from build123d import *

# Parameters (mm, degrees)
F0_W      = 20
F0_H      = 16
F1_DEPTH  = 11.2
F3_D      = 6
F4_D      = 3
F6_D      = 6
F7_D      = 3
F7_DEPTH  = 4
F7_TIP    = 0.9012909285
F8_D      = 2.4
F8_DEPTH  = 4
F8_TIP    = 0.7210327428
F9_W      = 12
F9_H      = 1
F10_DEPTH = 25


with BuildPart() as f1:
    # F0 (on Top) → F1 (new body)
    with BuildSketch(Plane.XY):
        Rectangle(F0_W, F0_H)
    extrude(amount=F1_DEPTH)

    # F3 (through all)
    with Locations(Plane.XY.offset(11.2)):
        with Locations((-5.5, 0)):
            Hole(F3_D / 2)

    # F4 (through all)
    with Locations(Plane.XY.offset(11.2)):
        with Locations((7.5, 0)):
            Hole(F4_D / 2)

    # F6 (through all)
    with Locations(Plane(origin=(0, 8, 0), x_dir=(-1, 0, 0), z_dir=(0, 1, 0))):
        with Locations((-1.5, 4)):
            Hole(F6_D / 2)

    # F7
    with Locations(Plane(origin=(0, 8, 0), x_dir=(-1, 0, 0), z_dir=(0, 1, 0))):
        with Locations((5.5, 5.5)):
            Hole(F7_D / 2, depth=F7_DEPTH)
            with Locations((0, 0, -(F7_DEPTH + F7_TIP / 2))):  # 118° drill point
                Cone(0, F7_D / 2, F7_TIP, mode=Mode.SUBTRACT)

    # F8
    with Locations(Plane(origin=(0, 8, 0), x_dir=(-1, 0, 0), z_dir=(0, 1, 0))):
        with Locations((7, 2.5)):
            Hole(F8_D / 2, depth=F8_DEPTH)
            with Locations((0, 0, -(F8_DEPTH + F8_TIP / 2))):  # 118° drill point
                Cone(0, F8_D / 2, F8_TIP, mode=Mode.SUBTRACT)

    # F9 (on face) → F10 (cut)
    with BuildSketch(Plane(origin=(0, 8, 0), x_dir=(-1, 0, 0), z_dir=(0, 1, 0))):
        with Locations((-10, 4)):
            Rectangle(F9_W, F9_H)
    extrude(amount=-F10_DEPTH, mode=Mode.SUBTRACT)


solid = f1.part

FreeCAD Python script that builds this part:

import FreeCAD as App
import Part
import Sketcher

doc = App.newDocument("Part")
body = doc.addObject("PartDesign::Body", "Body")

# Sketch on XY plane
sketch1 = doc.addObject("Sketcher::SketchObject", "Sketch")
body.addObject(sketch1)
sketch1.AttachmentSupport = (doc.XY_Plane, [""])
sketch1.MapMode = "FlatFace"
sketch1.addGeometry([
    Part.LineSegment(App.Vector(-10, 8, 0), App.Vector(-10, -8, 0)),
    Part.LineSegment(App.Vector(-10, -8, 0), App.Vector(10, -8, 0)),
    Part.LineSegment(App.Vector(10, -8, 0), App.Vector(10, 8, 0)),
    Part.LineSegment(App.Vector(10, 8, 0), App.Vector(-10, 8, 0)),
], False)
sketch1.addConstraint([
    Sketcher.Constraint("Coincident", 0, 2, 1, 1),
    Sketcher.Constraint("Coincident", 1, 2, 2, 1),
    Sketcher.Constraint("Coincident", 2, 2, 3, 1),
    Sketcher.Constraint("Coincident", 3, 2, 0, 1),
    Sketcher.Constraint("Vertical", 0),
    Sketcher.Constraint("Horizontal", 1),
    Sketcher.Constraint("Vertical", 2),
    Sketcher.Constraint("Horizontal", 3),
    Sketcher.Constraint("Symmetric", 0, 2, 2, 2, -1, 1),
    Sketcher.Constraint("DistanceX", 1, 1, 1, 2, 20.0),
    Sketcher.Constraint("DistanceY", 0, 2, 0, 1, 16.0),
])
pad1 = doc.addObject("PartDesign::Pad", "Pad")
body.addObject(pad1)
pad1.Profile = sketch1
pad1.Length = 11.2

# Sketch on XY plane
sketch2 = doc.addObject("Sketcher::SketchObject", "Sketch001")
body.addObject(sketch2)
sketch2.AttachmentSupport = (doc.XY_Plane, [""])
sketch2.MapMode = "FlatFace"
sketch2.AttachmentOffset = App.Placement(App.Vector(0, 0, 11.2), App.Rotation())
sketch2.addGeometry(Part.Circle(App.Vector(-5.5, 0, 0), App.Vector(0, 0, 1), 3), False)
sketch2.addConstraint([
    Sketcher.Constraint("PointOnObject", 0, 3, -1),
    Sketcher.Constraint("Diameter", 0, 6.0),
    Sketcher.Constraint("DistanceX", 0, 3, -1, 1, 5.5),
])
doc.recompute()
hole = doc.addObject("PartDesign::Hole", "Hole")
body.addObject(hole)
hole.Profile = sketch2
hole.ThreadType = "None"
hole.Diameter = 6
hole.DepthType = "ThroughAll"

# Sketch on XY plane
sketch3 = doc.addObject("Sketcher::SketchObject", "Sketch002")
body.addObject(sketch3)
sketch3.AttachmentSupport = (doc.XY_Plane, [""])
sketch3.MapMode = "FlatFace"
sketch3.AttachmentOffset = App.Placement(App.Vector(0, 0, 11.2), App.Rotation())
sketch3.addGeometry(Part.Circle(App.Vector(7.5, 0, 0), App.Vector(0, 0, 1), 1.5), False)
sketch3.addConstraint([
    Sketcher.Constraint("PointOnObject", 0, 3, -1),
    Sketcher.Constraint("Diameter", 0, 3.0),
    Sketcher.Constraint("DistanceX", -1, 1, 0, 3, 7.5),
])
doc.recompute()
hole2 = doc.addObject("PartDesign::Hole", "Hole001")
body.addObject(hole2)
hole2.Profile = sketch3
hole2.ThreadType = "None"
hole2.Diameter = 3
hole2.DepthType = "ThroughAll"

# Sketch on XZ plane
sketch4 = doc.addObject("Sketcher::SketchObject", "Sketch003")
body.addObject(sketch4)
sketch4.AttachmentSupport = (doc.XZ_Plane, [""])
sketch4.MapMode = "FlatFace"
sketch4.AttachmentOffset = App.Placement(App.Vector(0, 0, -8), App.Rotation())
sketch4.addGeometry(Part.Circle(App.Vector(1.5, 4, 0), App.Vector(0, 0, 1), 3), False)
sketch4.addConstraint([
    Sketcher.Constraint("Diameter", 0, 6.0),
    Sketcher.Constraint("DistanceY", -1, 1, 0, 3, 4.0),
    Sketcher.Constraint("DistanceX", -1, 1, 0, 3, 1.5),
])
doc.recompute()
hole3 = doc.addObject("PartDesign::Hole", "Hole002")
body.addObject(hole3)
hole3.Profile = sketch4
hole3.ThreadType = "None"
hole3.Diameter = 6
hole3.DepthType = "ThroughAll"
hole3.Reversed = True

# Sketch on XZ plane
sketch5 = doc.addObject("Sketcher::SketchObject", "Sketch004")
body.addObject(sketch5)
sketch5.AttachmentSupport = (doc.XZ_Plane, [""])
sketch5.MapMode = "FlatFace"
sketch5.AttachmentOffset = App.Placement(App.Vector(0, 0, -8), App.Rotation())
sketch5.addGeometry(Part.Circle(App.Vector(-5.5, 5.5, 0), App.Vector(0, 0, 1), 1.5), False)
sketch5.addConstraint([
    Sketcher.Constraint("Diameter", 0, 3.0),
    Sketcher.Constraint("DistanceX", 0, 3, -1, 1, 5.5),
    Sketcher.Constraint("DistanceY", -1, 1, 0, 3, 5.5),
])
doc.recompute()
hole4 = doc.addObject("PartDesign::Hole", "Hole003")
body.addObject(hole4)
hole4.Profile = sketch5
hole4.ThreadType = "None"
hole4.Diameter = 3
hole4.DepthType = "Dimension"
hole4.Depth = 4
hole4.DrillPoint = "Angled"
hole4.DrillPointAngle = 118
hole4.Reversed = True

# Sketch on XZ plane
sketch6 = doc.addObject("Sketcher::SketchObject", "Sketch005")
body.addObject(sketch6)
sketch6.AttachmentSupport = (doc.XZ_Plane, [""])
sketch6.MapMode = "FlatFace"
sketch6.AttachmentOffset = App.Placement(App.Vector(0, 0, -8), App.Rotation())
sketch6.addGeometry(Part.Circle(App.Vector(-7, 2.5, 0), App.Vector(0, 0, 1), 1.2), False)
sketch6.addConstraint([
    Sketcher.Constraint("Diameter", 0, 2.4),
    Sketcher.Constraint("DistanceX", 0, 3, -1, 1, 7.0),
    Sketcher.Constraint("DistanceY", -1, 1, 0, 3, 2.5),
])
doc.recompute()
hole5 = doc.addObject("PartDesign::Hole", "Hole004")
body.addObject(hole5)
hole5.Profile = sketch6
hole5.ThreadType = "None"
hole5.Diameter = 2.4
hole5.DepthType = "Dimension"
hole5.Depth = 4
hole5.DrillPoint = "Angled"
hole5.DrillPointAngle = 118
hole5.Reversed = True

# Sketch on XZ plane
sketch7 = doc.addObject("Sketcher::SketchObject", "Sketch006")
body.addObject(sketch7)
sketch7.AttachmentSupport = (doc.XZ_Plane, [""])
sketch7.MapMode = "FlatFace"
sketch7.AttachmentOffset = App.Placement(App.Vector(0, 0, -8), App.Rotation())
sketch7.addGeometry([
    Part.LineSegment(App.Vector(16, 4.5, 0), App.Vector(16, 3.5, 0)),
    Part.LineSegment(App.Vector(16, 3.5, 0), App.Vector(4, 3.5, 0)),
    Part.LineSegment(App.Vector(4, 3.5, 0), App.Vector(4, 4.5, 0)),
    Part.LineSegment(App.Vector(4, 4.5, 0), App.Vector(16, 4.5, 0)),
], False)
sketch7.addConstraint([
    Sketcher.Constraint("Coincident", 0, 2, 1, 1),
    Sketcher.Constraint("Coincident", 1, 2, 2, 1),
    Sketcher.Constraint("Coincident", 2, 2, 3, 1),
    Sketcher.Constraint("Coincident", 3, 2, 0, 1),
    Sketcher.Constraint("Vertical", 0),
    Sketcher.Constraint("Horizontal", 1),
    Sketcher.Constraint("Vertical", 2),
    Sketcher.Constraint("Horizontal", 3),
    Sketcher.Constraint("DistanceX", 1, 2, 1, 1, 12.0),
    Sketcher.Constraint("DistanceY", 0, 2, 0, 1, 1.0),
    Sketcher.Constraint("DistanceX", -1, 1, 0, 2, 16.0),
    Sketcher.Constraint("DistanceY", -1, 1, 0, 2, 3.5),
])
pocket1 = doc.addObject("PartDesign::Pocket", "Pocket")
body.addObject(pocket1)
pocket1.Profile = sketch7
pocket1.Length = 25
pocket1.Reversed = True

doc.recompute()
